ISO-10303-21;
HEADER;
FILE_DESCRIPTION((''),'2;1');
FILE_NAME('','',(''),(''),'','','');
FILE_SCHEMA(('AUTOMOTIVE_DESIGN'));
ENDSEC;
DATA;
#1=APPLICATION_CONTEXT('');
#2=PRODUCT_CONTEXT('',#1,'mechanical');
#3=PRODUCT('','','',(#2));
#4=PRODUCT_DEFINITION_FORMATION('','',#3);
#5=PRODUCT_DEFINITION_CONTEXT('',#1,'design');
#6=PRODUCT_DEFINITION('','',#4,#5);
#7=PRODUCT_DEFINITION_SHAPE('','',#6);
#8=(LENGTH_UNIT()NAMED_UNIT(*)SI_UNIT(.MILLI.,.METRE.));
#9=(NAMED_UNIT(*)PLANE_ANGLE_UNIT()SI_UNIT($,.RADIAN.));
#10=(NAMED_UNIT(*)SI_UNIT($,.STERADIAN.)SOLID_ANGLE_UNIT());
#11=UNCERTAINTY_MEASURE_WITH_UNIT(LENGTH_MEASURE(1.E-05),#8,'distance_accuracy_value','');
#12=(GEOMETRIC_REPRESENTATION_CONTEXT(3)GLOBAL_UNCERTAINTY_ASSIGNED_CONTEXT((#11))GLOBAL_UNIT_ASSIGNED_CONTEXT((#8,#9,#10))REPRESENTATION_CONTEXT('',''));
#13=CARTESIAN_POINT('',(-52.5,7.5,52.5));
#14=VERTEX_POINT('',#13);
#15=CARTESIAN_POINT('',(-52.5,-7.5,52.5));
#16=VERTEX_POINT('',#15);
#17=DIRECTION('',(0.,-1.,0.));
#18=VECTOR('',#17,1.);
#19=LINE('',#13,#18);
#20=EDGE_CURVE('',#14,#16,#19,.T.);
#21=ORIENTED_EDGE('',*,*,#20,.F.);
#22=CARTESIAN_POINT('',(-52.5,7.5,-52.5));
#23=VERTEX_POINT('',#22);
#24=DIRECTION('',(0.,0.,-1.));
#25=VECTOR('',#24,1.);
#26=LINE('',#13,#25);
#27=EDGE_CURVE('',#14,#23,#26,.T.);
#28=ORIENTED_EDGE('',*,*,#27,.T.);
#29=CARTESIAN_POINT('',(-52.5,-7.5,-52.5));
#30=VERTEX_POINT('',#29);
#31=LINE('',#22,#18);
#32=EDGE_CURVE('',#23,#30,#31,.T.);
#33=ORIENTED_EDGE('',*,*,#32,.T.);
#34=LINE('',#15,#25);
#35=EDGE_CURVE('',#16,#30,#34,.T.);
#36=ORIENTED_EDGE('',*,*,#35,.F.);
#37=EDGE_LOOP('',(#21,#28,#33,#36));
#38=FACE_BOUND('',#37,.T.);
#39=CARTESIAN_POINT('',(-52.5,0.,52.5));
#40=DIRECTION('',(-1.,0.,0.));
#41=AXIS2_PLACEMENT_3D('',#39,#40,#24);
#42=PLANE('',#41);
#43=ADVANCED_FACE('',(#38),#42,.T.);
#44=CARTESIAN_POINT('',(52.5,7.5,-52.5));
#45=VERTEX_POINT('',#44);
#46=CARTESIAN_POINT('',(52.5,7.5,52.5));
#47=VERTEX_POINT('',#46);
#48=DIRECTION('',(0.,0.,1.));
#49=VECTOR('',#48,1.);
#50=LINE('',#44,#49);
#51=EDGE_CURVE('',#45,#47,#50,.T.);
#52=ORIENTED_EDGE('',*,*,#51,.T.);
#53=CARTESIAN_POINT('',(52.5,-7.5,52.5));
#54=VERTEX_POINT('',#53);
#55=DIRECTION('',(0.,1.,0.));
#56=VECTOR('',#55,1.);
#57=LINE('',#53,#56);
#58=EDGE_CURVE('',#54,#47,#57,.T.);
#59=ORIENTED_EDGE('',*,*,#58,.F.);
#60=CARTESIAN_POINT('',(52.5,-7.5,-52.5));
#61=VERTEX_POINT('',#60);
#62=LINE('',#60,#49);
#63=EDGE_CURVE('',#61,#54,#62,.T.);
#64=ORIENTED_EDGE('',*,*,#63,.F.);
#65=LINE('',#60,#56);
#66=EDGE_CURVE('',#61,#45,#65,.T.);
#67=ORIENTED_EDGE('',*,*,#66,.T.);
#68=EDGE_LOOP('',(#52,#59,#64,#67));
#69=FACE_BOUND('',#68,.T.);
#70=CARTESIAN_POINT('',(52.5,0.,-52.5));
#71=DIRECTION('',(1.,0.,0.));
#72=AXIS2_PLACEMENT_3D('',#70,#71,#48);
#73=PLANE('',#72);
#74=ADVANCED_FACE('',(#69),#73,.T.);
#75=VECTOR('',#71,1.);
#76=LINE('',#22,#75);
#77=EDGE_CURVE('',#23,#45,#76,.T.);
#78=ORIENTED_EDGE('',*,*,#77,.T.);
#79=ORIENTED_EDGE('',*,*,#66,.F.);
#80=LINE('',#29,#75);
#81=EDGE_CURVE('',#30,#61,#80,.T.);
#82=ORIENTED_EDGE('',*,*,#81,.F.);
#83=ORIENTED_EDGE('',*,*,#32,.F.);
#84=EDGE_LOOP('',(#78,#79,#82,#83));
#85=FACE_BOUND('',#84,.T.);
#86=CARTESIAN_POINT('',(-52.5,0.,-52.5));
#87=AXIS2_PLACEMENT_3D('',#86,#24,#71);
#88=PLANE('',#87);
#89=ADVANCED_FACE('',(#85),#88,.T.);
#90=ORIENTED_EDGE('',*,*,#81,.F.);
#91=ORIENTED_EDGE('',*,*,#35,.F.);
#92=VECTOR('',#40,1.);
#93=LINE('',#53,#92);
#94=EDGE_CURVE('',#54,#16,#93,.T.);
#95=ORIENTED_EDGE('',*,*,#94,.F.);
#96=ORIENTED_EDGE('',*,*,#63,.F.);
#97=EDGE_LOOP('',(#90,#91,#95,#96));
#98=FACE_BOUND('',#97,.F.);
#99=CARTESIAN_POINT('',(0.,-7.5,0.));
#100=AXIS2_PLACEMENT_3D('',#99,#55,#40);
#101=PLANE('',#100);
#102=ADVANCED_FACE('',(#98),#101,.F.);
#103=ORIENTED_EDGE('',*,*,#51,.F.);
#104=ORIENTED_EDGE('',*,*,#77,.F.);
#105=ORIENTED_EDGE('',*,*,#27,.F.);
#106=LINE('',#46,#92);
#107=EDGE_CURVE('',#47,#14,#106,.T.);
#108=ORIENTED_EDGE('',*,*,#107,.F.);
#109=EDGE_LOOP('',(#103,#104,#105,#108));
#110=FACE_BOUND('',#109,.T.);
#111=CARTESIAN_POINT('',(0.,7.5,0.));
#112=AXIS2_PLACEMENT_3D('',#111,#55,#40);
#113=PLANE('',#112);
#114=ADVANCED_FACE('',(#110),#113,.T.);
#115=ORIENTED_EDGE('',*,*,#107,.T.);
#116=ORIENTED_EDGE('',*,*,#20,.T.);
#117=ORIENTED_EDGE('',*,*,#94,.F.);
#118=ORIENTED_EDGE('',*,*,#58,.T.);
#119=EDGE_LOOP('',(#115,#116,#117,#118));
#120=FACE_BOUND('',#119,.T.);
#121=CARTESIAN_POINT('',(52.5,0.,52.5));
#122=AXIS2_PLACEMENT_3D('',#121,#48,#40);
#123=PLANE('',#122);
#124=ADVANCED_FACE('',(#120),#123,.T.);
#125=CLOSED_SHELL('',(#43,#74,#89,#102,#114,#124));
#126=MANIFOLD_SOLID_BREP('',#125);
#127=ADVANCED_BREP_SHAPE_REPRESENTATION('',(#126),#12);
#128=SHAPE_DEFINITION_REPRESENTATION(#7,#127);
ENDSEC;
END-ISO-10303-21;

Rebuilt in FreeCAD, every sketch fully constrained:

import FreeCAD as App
import Part
import Sketcher

V = App.Vector
Q = App.Units.Quantity


def add_polygon(sketch, points):
    """Adds a closed chain of lines whose ends are joined by coincident constraints."""
    first, n = sketch.GeometryCount, len(points)
    for a, b in zip(points, points[1:] + points[:1]):
        sketch.addGeometry(Part.LineSegment(App.Vector(*a, 0), App.Vector(*b, 0)), False)
    for i in range(n):
        sketch.addConstraint(Sketcher.Constraint("Coincident", first + i, 2, first + (i + 1) % n, 1))

doc = App.newDocument("Part")
body = doc.addObject("PartDesign::Body", "Body")

# Sketch on XZ plane
sketch1 = body.newObject("Sketcher::SketchObject", "Sketch")
sketch1.AttachmentSupport = (doc.getObject("XZ_Plane"), [""])
sketch1.MapMode = "FlatFace"
add_polygon(sketch1, [(-52.5, 52.5), (52.5, 52.5), (52.5, -52.5), (-52.5, -52.5)])  # lines 0-3
sketch1.addConstraint([
    Sketcher.Constraint("Horizontal", 0),
    Sketcher.Constraint("Vertical", 1),
    Sketcher.Constraint("Horizontal", 2),
    Sketcher.Constraint("Vertical", 3),
    Sketcher.Constraint("Symmetric", 0, 2, 2, 2, -1, 1),
    Sketcher.Constraint("Equal", 2, 1),
    Sketcher.Constraint("DistanceX", 0, 1, 0, 2, Q("105 mm")),
])
pad1 = body.newObject("PartDesign::Pad", "Pad")
pad1.Profile = sketch1
pad1.Length = 15
pad1.Midplane = True

doc.recompute()
